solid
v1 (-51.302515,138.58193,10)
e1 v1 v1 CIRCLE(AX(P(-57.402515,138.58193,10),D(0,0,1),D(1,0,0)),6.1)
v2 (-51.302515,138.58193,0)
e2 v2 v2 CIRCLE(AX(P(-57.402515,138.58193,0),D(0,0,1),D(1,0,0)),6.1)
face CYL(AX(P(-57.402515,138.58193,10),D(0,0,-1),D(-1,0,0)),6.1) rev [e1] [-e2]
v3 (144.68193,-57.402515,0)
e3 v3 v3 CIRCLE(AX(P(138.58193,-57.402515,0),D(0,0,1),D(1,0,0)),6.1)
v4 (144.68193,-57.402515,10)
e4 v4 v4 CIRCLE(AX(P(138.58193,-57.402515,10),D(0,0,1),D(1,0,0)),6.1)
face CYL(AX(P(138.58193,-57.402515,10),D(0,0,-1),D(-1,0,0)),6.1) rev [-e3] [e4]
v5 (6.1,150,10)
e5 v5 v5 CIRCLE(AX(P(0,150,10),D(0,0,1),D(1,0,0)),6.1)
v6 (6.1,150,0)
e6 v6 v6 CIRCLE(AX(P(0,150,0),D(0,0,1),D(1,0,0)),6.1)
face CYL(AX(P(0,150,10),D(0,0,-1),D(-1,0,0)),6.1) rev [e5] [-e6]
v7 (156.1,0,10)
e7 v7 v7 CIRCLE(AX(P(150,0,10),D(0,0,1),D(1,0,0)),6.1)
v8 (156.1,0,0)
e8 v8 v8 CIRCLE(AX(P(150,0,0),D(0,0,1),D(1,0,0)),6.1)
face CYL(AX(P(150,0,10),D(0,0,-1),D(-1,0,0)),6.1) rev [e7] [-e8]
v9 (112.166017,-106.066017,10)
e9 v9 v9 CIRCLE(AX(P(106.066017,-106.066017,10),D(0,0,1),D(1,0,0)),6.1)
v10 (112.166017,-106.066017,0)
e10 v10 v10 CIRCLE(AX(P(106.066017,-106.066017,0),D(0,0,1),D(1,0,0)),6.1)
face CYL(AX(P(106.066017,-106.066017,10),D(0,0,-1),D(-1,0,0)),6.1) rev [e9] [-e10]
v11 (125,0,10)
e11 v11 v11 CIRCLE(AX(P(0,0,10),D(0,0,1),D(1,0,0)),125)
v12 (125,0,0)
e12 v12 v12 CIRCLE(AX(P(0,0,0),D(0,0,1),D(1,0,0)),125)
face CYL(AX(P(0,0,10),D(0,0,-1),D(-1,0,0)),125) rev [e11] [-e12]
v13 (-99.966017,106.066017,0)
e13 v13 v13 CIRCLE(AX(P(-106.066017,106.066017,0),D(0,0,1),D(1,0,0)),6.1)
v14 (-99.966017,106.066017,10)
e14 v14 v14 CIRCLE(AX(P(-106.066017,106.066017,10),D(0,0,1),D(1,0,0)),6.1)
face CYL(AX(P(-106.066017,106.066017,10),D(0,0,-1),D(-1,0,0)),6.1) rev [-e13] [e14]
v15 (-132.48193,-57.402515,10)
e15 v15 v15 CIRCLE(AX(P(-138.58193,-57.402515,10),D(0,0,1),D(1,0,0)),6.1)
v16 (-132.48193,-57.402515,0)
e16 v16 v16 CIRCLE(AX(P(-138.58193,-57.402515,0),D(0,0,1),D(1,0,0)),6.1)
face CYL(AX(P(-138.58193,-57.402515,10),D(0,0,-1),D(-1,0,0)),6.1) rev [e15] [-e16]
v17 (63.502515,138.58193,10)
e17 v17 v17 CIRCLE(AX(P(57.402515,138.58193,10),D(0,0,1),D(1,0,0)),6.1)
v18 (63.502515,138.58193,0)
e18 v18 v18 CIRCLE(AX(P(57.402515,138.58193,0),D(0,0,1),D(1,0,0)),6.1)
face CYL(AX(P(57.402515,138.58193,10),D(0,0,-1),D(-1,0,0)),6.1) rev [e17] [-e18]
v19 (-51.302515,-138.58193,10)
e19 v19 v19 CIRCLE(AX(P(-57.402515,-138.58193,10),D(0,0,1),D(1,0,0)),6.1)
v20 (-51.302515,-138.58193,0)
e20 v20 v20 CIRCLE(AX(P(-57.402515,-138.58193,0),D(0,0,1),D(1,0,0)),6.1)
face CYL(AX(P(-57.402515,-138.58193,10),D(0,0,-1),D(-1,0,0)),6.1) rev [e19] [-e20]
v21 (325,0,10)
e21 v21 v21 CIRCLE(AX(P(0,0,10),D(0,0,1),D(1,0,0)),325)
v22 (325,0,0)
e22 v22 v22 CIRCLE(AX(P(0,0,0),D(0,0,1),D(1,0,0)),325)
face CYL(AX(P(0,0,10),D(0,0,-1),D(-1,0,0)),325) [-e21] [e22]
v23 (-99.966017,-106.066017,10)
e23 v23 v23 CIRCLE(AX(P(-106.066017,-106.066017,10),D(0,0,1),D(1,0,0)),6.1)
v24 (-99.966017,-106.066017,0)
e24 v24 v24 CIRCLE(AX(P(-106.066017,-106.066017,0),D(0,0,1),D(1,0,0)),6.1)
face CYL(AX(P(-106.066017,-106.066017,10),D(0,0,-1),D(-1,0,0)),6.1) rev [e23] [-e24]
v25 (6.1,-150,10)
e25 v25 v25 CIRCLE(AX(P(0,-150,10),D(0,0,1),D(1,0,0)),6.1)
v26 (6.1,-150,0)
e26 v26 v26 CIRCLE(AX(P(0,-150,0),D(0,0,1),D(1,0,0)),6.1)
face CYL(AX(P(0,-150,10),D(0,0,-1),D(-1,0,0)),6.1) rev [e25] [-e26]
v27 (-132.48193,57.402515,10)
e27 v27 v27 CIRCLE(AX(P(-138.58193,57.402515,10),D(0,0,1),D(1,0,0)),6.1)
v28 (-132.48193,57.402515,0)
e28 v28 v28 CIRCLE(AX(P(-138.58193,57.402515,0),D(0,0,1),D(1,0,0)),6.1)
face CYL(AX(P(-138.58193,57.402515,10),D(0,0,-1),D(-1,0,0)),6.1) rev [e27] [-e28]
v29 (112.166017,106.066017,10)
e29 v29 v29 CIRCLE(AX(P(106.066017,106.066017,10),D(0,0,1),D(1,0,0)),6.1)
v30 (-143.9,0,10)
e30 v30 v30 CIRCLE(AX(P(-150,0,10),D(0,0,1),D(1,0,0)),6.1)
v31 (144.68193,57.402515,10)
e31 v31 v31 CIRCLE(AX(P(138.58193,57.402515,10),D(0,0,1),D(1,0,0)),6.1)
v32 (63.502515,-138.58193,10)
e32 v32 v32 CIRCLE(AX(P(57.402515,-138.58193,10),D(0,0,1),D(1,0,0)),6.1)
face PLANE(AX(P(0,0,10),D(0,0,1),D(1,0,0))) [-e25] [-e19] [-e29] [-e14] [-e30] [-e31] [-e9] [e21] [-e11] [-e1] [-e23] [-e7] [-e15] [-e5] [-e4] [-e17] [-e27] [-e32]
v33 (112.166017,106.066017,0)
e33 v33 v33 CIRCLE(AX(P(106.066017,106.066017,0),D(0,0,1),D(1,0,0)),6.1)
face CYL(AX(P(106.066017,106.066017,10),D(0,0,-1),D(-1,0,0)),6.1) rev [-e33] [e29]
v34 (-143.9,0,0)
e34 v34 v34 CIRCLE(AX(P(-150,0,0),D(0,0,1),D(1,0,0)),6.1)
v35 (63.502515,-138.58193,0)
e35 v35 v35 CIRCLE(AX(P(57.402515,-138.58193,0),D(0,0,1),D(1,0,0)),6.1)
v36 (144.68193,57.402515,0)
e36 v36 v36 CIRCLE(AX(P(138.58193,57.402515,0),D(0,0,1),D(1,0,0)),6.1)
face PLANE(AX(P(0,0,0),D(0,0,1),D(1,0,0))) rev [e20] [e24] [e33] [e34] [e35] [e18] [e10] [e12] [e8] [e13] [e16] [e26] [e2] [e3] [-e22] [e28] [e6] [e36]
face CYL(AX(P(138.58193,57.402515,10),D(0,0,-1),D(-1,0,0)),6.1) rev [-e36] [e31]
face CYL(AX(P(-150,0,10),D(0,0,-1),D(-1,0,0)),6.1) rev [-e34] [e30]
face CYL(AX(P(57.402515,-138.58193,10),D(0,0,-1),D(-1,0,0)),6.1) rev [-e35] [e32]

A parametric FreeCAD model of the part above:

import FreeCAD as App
import Part
import Sketcher
from FreeCAD import Vector
Q = App.Units.Quantity

doc = App.newDocument("Part")
body = doc.addObject("PartDesign::Body", "Body")

sketch1 = body.newObject("Sketcher::SketchObject", "Sketch")
sketch1.AttachmentSupport = (doc.getObject("XY_Plane"), [""])
sketch1.MapMode = "FlatFace"
sketch1.addGeometry([
    Part.Circle(Vector(0, 0, 0), Vector(0, 0, 1), 325),
    Part.Circle(Vector(-106.066017, -106.066017, 0), Vector(0, 0, 1), 6.1),
    Part.Circle(Vector(-57.402515, -138.58193, 0), Vector(0, 0, 1), 6.1),
    Part.Circle(Vector(-138.58193, -57.402515, 0), Vector(0, 0, 1), 6.1),
    Part.Circle(Vector(0, 0, 0), Vector(0, 0, 1), 125),
    Part.Circle(Vector(0, -150, 0), Vector(0, 0, 1), 6.1),
    Part.Circle(Vector(57.402515, -138.58193, 0), Vector(0, 0, 1), 6.1),
    Part.Circle(Vector(106.066017, -106.066017, 0), Vector(0, 0, 1), 6.1),
    Part.Circle(Vector(138.58193, -57.402515, 0), Vector(0, 0, 1), 6.1),
    Part.Circle(Vector(-150, 0, 0), Vector(0, 0, 1), 6.1),
    Part.Circle(Vector(-138.58193, 57.402515, 0), Vector(0, 0, 1), 6.1),
    Part.Circle(Vector(-106.066017, 106.066017, 0), Vector(0, 0, 1), 6.1),
    Part.Circle(Vector(-57.402515, 138.58193, 0), Vector(0, 0, 1), 6.1),
    Part.Circle(Vector(150, 0, 0), Vector(0, 0, 1), 6.1),
    Part.Circle(Vector(138.58193, 57.402515, 0), Vector(0, 0, 1), 6.1),
    Part.Circle(Vector(0, 150, 0), Vector(0, 0, 1), 6.1),
    Part.Circle(Vector(57.402515, 138.58193, 0), Vector(0, 0, 1), 6.1),
    Part.Circle(Vector(106.066017, 106.066017, 0), Vector(0, 0, 1), 6.1),
], False)
sketch1.addConstraint([
    Sketcher.Constraint("Coincident", 0, 3, -1, 1),
    Sketcher.Constraint("Coincident", 4, 3, -1, 1),
    Sketcher.Constraint("Equal", 1, 2),
    Sketcher.Constraint("Equal", 2, 3),
    Sketcher.Constraint("Equal", 3, 5),
    Sketcher.Constraint("Equal", 5, 6),
    Sketcher.Constraint("Equal", 6, 7),
    Sketcher.Constraint("Equal", 7, 8),
    Sketcher.Constraint("Equal", 8, 9),
    Sketcher.Constraint("Equal", 9, 10),
    Sketcher.Constraint("Equal", 10, 11),
    Sketcher.Constraint("Equal", 11, 12),
    Sketcher.Constraint("Equal", 12, 13),
    Sketcher.Constraint("Equal", 13, 14),
    Sketcher.Constraint("Equal", 14, 15),
    Sketcher.Constraint("Equal", 15, 16),
    Sketcher.Constraint("Equal", 16, 17),
    Sketcher.Constraint("Symmetric", 8, 3, 10, 3, -1, 1),
    Sketcher.Constraint("Symmetric", 7, 3, 11, 3, -1, 1),
    Sketcher.Constraint("Symmetric", 6, 3, 12, 3, -1, 1),
    Sketcher.Constraint("Symmetric", 9, 3, 13, 3, -1, 1),
    Sketcher.Constraint("Symmetric", 3, 3, 14, 3, -1, 1),
    Sketcher.Constraint("Symmetric", 5, 3, 15, 3, -1, 1),
    Sketcher.Constraint("Symmetric", 2, 3, 16, 3, -1, 1),
    Sketcher.Constraint("Symmetric", 1, 3, 17, 3, -1, 1),
    Sketcher.Constraint("Symmetric", 2, 3, 6, 3, -2),
    Sketcher.Constraint("Symmetric", 1, 3, 7, 3, -2),
    Sketcher.Constraint("Symmetric", 3, 3, 8, 3, -2),
    Sketcher.Constraint("PointOnObject", 5, 3, -2),
    Sketcher.Constraint("PointOnObject", 9, 3, -1),
    Sketcher.Constraint("Diameter", 0, Q("650 mm")),
    Sketcher.Constraint("Diameter", 4, Q("250 mm")),
    Sketcher.Constraint("Diameter", 1, Q("12.2 mm")),
    Sketcher.Constraint("DistanceY", 5, 3, -1, 1, Q("150 mm")),
    Sketcher.Constraint("DistanceX", 9, 3, -1, 1, Q("150 mm")),
    Sketcher.Constraint("DistanceY", 2, 3, -1, 1, Q("138.58193 mm")),
    Sketcher.Constraint("DistanceX", 3, 3, -1, 1, Q("138.58193 mm")),
    Sketcher.Constraint("DistanceX", 2, 3, 6, 3, Q("114.80503 mm")),
    Sketcher.Constraint("DistanceY", 3, 3, 10, 3, Q("114.80503 mm")),
    Sketcher.Constraint("DistanceX", 1, 3, -1, 1, Q("106.066017 mm")),
    Sketcher.Constraint("DistanceY", 1, 3, -1, 1, Q("106.066017 mm")),
])
pad1 = body.newObject("PartDesign::Pad", "Pad")
pad1.Profile = sketch1
pad1.Length = 10

doc.recompute()
